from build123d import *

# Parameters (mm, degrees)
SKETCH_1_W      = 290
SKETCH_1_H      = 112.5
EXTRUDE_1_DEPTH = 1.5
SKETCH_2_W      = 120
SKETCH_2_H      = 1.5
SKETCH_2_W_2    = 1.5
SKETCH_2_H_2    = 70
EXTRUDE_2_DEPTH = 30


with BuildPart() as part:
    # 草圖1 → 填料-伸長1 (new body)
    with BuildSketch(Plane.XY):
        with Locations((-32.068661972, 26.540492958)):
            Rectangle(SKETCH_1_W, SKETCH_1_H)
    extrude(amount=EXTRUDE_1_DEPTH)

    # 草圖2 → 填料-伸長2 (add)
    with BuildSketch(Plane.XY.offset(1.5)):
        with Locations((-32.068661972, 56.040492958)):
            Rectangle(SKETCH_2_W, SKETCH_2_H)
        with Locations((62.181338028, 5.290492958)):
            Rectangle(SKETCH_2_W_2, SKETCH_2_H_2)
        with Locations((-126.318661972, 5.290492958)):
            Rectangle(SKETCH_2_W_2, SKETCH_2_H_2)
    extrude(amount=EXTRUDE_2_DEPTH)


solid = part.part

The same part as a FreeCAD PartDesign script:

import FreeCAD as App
import Part
import Sketcher
Q = App.Units.Quantity

doc = App.newDocument("Part")
body = doc.addObject("PartDesign::Body", "Body")

sketch1 = doc.addObject("Sketcher::SketchObject", "Sketch")
body.addObject(sketch1)
sketch1.AttachmentSupport = (doc.XY_Plane, [""])
sketch1.MapMode = "FlatFace"
sketch1.addGeometry(Part.LineSegment(App.Vector(-177, 83, 0), App.Vector(-177, -30, 0)), False)
sketch1.addGeometry(Part.LineSegment(App.Vector(-177, -30, 0), App.Vector(113, -30, 0)), False)
sketch1.addGeometry(Part.LineSegment(App.Vector(113, -30, 0), App.Vector(113, 83, 0)), False)
sketch1.addGeometry(Part.LineSegment(App.Vector(113, 83, 0), App.Vector(-177, 83, 0)), False)
sketch1.addConstraint(Sketcher.Constraint("Coincident", 0, 2, 1, 1))
sketch1.addConstraint(Sketcher.Constraint("Coincident", 1, 2, 2, 1))
sketch1.addConstraint(Sketcher.Constraint("Coincident", 2, 2, 3, 1))
sketch1.addConstraint(Sketcher.Constraint("Coincident", 3, 2, 0, 1))
sketch1.addConstraint(Sketcher.Constraint("Vertical", 0))
sketch1.addConstraint(Sketcher.Constraint("Horizontal", 1))
sketch1.addConstraint(Sketcher.Constraint("Vertical", 2))
sketch1.addConstraint(Sketcher.Constraint("Horizontal", 3))
sketch1.addConstraint(Sketcher.Constraint("DistanceX", 1, 1, 1, 2, Q("290 mm")))
sketch1.addConstraint(Sketcher.Constraint("DistanceY", 0, 2, 0, 1, Q("112.5 mm")))
sketch1.addConstraint(Sketcher.Constraint("DistanceX", 0, 2, -1, 1, Q("177.068662 mm")))
sketch1.addConstraint(Sketcher.Constraint("DistanceY", 0, 2, -1, 1, Q("29.709507 mm")))
pad1 = doc.addObject("PartDesign::Pad", "Pad")
body.addObject(pad1)
pad1.Profile = sketch1
pad1.Length = 1.5

sketch2 = doc.addObject("Sketcher::SketchObject", "Sketch001")
body.addObject(sketch2)
sketch2.AttachmentSupport = (doc.XY_Plane, [""])
sketch2.MapMode = "FlatFace"
sketch2.AttachmentOffset = App.Placement(App.Vector(0, 0, 1.5), App.Rotation())
sketch2.addGeometry(Part.LineSegment(App.Vector(-92.1, 56.8, 0), App.Vector(-92.1, 55.3, 0)), False)
sketch2.addGeometry(Part.LineSegment(App.Vector(-92.1, 55.3, 0), App.Vector(27.9, 55.3, 0)), False)
sketch2.addGeometry(Part.LineSegment(App.Vector(27.9, 55.3, 0), App.Vector(27.9, 56.8, 0)), False)
sketch2.addGeometry(Part.LineSegment(App.Vector(27.9, 56.8, 0), App.Vector(-92.1, 56.8, 0)), False)
sketch2.addGeometry(Part.LineSegment(App.Vector(61.4, 40.3, 0), App.Vector(61.4, -29.7, 0)), False)
sketch2.addGeometry(Part.LineSegment(App.Vector(61.4, -29.7, 0), App.Vector(62.9, -29.7, 0)), False)
sketch2.addGeometry(Part.LineSegment(App.Vector(62.9, -29.7, 0), App.Vector(62.9, 40.3, 0)), False)
sketch2.addGeometry(Part.LineSegment(App.Vector(62.9, 40.3, 0), App.Vector(61.4, 40.3, 0)), False)
sketch2.addGeometry(Part.LineSegment(App.Vector(-127.1, 40.3, 0), App.Vector(-127.1, -29.7, 0)), False)
sketch2.addGeometry(Part.LineSegment(App.Vector(-127.1, -29.7, 0), App.Vector(-125.6, -29.7, 0)), False)
sketch2.addGeometry(Part.LineSegment(App.Vector(-125.6, -29.7, 0), App.Vector(-125.6, 40.3, 0)), False)
sketch2.addGeometry(Part.LineSegment(App.Vector(-125.6, 40.3, 0), App.Vector(-127.1, 40.3, 0)), False)
sketch2.addConstraint(Sketcher.Constraint("Coincident", 0, 2, 1, 1))
sketch2.addConstraint(Sketcher.Constraint("Coincident", 1, 2, 2, 1))
sketch2.addConstraint(Sketcher.Constraint("Coincident", 2, 2, 3, 1))
sketch2.addConstraint(Sketcher.Constraint("Coincident", 3, 2, 0, 1))
sketch2.addConstraint(Sketcher.Constraint("Coincident", 4, 2, 5, 1))
sketch2.addConstraint(Sketcher.Constraint("Coincident", 5, 2, 6, 1))
sketch2.addConstraint(Sketcher.Constraint("Coincident", 6, 2, 7, 1))
sketch2.addConstraint(Sketcher.Constraint("Coincident", 7, 2, 4, 1))
sketch2.addConstraint(Sketcher.Constraint("Coincident", 8, 2, 9, 1))
sketch2.addConstraint(Sketcher.Constraint("Coincident", 9, 2, 10, 1))
sketch2.addConstraint(Sketcher.Constraint("Coincident", 10, 2, 11, 1))
sketch2.addConstraint(Sketcher.Constraint("Coincident", 11, 2, 8, 1))
sketch2.addConstraint(Sketcher.Constraint("Vertical", 0))
sketch2.addConstraint(Sketcher.Constraint("Horizontal", 1))
sketch2.addConstraint(Sketcher.Constraint("Vertical", 2))
sketch2.addConstraint(Sketcher.Constraint("Horizontal", 3))
sketch2.addConstraint(Sketcher.Constraint("Vertical", 4))
sketch2.addConstraint(Sketcher.Constraint("Horizontal", 5))
sketch2.addConstraint(Sketcher.Constraint("Vertical", 6))
sketch2.addConstraint(Sketcher.Constraint("Horizontal", 7))
sketch2.addConstraint(Sketcher.Constraint("Vertical", 8))
sketch2.addConstraint(Sketcher.Constraint("Horizontal", 9))
sketch2.addConstraint(Sketcher.Constraint("Vertical", 10))
sketch2.addConstraint(Sketcher.Constraint("Horizontal", 11))
sketch2.addConstraint(Sketcher.Constraint("Horizontal", 5, 2, 8, 2))
sketch2.addConstraint(Sketcher.Constraint("Horizontal", 7, 2, 10, 2))
sketch2.addConstraint(Sketcher.Constraint("Equal", 7, 9))
sketch2.addConstraint(Sketcher.Constraint("Equal", 11, 0))
sketch2.addConstraint(Sketcher.Constraint("DistanceX", 1, 1, 1, 2, Q("120 mm")))
sketch2.addConstraint(Sketcher.Constraint("DistanceY", 4, 2, 4, 1, Q("70 mm")))
sketch2.addConstraint(Sketcher.Constraint("DistanceX", 5, 1, 5, 2, Q("1.5 mm")))
sketch2.addConstraint(Sketcher.Constraint("DistanceY", 4, 2, 1, 2, Q("85 mm")))
sketch2.addConstraint(Sketcher.Constraint("DistanceX", 1, 2, 5, 2, Q("35 mm")))
sketch2.addConstraint(Sketcher.Constraint("DistanceX", 8, 2, 0, 2, Q("35 mm")))
sketch2.addConstraint(Sketcher.Constraint("DistanceX", 0, 2, -1, 1, Q("92.068662 mm")))
sketch2.addConstraint(Sketcher.Constraint("DistanceY", -1, 1, 0, 2, Q("55.290493 mm")))
pad2 = doc.addObject("PartDesign::Pad", "Pad001")
body.addObject(pad2)
pad2.Profile = sketch2
pad2.Length = 30

doc.recompute()
